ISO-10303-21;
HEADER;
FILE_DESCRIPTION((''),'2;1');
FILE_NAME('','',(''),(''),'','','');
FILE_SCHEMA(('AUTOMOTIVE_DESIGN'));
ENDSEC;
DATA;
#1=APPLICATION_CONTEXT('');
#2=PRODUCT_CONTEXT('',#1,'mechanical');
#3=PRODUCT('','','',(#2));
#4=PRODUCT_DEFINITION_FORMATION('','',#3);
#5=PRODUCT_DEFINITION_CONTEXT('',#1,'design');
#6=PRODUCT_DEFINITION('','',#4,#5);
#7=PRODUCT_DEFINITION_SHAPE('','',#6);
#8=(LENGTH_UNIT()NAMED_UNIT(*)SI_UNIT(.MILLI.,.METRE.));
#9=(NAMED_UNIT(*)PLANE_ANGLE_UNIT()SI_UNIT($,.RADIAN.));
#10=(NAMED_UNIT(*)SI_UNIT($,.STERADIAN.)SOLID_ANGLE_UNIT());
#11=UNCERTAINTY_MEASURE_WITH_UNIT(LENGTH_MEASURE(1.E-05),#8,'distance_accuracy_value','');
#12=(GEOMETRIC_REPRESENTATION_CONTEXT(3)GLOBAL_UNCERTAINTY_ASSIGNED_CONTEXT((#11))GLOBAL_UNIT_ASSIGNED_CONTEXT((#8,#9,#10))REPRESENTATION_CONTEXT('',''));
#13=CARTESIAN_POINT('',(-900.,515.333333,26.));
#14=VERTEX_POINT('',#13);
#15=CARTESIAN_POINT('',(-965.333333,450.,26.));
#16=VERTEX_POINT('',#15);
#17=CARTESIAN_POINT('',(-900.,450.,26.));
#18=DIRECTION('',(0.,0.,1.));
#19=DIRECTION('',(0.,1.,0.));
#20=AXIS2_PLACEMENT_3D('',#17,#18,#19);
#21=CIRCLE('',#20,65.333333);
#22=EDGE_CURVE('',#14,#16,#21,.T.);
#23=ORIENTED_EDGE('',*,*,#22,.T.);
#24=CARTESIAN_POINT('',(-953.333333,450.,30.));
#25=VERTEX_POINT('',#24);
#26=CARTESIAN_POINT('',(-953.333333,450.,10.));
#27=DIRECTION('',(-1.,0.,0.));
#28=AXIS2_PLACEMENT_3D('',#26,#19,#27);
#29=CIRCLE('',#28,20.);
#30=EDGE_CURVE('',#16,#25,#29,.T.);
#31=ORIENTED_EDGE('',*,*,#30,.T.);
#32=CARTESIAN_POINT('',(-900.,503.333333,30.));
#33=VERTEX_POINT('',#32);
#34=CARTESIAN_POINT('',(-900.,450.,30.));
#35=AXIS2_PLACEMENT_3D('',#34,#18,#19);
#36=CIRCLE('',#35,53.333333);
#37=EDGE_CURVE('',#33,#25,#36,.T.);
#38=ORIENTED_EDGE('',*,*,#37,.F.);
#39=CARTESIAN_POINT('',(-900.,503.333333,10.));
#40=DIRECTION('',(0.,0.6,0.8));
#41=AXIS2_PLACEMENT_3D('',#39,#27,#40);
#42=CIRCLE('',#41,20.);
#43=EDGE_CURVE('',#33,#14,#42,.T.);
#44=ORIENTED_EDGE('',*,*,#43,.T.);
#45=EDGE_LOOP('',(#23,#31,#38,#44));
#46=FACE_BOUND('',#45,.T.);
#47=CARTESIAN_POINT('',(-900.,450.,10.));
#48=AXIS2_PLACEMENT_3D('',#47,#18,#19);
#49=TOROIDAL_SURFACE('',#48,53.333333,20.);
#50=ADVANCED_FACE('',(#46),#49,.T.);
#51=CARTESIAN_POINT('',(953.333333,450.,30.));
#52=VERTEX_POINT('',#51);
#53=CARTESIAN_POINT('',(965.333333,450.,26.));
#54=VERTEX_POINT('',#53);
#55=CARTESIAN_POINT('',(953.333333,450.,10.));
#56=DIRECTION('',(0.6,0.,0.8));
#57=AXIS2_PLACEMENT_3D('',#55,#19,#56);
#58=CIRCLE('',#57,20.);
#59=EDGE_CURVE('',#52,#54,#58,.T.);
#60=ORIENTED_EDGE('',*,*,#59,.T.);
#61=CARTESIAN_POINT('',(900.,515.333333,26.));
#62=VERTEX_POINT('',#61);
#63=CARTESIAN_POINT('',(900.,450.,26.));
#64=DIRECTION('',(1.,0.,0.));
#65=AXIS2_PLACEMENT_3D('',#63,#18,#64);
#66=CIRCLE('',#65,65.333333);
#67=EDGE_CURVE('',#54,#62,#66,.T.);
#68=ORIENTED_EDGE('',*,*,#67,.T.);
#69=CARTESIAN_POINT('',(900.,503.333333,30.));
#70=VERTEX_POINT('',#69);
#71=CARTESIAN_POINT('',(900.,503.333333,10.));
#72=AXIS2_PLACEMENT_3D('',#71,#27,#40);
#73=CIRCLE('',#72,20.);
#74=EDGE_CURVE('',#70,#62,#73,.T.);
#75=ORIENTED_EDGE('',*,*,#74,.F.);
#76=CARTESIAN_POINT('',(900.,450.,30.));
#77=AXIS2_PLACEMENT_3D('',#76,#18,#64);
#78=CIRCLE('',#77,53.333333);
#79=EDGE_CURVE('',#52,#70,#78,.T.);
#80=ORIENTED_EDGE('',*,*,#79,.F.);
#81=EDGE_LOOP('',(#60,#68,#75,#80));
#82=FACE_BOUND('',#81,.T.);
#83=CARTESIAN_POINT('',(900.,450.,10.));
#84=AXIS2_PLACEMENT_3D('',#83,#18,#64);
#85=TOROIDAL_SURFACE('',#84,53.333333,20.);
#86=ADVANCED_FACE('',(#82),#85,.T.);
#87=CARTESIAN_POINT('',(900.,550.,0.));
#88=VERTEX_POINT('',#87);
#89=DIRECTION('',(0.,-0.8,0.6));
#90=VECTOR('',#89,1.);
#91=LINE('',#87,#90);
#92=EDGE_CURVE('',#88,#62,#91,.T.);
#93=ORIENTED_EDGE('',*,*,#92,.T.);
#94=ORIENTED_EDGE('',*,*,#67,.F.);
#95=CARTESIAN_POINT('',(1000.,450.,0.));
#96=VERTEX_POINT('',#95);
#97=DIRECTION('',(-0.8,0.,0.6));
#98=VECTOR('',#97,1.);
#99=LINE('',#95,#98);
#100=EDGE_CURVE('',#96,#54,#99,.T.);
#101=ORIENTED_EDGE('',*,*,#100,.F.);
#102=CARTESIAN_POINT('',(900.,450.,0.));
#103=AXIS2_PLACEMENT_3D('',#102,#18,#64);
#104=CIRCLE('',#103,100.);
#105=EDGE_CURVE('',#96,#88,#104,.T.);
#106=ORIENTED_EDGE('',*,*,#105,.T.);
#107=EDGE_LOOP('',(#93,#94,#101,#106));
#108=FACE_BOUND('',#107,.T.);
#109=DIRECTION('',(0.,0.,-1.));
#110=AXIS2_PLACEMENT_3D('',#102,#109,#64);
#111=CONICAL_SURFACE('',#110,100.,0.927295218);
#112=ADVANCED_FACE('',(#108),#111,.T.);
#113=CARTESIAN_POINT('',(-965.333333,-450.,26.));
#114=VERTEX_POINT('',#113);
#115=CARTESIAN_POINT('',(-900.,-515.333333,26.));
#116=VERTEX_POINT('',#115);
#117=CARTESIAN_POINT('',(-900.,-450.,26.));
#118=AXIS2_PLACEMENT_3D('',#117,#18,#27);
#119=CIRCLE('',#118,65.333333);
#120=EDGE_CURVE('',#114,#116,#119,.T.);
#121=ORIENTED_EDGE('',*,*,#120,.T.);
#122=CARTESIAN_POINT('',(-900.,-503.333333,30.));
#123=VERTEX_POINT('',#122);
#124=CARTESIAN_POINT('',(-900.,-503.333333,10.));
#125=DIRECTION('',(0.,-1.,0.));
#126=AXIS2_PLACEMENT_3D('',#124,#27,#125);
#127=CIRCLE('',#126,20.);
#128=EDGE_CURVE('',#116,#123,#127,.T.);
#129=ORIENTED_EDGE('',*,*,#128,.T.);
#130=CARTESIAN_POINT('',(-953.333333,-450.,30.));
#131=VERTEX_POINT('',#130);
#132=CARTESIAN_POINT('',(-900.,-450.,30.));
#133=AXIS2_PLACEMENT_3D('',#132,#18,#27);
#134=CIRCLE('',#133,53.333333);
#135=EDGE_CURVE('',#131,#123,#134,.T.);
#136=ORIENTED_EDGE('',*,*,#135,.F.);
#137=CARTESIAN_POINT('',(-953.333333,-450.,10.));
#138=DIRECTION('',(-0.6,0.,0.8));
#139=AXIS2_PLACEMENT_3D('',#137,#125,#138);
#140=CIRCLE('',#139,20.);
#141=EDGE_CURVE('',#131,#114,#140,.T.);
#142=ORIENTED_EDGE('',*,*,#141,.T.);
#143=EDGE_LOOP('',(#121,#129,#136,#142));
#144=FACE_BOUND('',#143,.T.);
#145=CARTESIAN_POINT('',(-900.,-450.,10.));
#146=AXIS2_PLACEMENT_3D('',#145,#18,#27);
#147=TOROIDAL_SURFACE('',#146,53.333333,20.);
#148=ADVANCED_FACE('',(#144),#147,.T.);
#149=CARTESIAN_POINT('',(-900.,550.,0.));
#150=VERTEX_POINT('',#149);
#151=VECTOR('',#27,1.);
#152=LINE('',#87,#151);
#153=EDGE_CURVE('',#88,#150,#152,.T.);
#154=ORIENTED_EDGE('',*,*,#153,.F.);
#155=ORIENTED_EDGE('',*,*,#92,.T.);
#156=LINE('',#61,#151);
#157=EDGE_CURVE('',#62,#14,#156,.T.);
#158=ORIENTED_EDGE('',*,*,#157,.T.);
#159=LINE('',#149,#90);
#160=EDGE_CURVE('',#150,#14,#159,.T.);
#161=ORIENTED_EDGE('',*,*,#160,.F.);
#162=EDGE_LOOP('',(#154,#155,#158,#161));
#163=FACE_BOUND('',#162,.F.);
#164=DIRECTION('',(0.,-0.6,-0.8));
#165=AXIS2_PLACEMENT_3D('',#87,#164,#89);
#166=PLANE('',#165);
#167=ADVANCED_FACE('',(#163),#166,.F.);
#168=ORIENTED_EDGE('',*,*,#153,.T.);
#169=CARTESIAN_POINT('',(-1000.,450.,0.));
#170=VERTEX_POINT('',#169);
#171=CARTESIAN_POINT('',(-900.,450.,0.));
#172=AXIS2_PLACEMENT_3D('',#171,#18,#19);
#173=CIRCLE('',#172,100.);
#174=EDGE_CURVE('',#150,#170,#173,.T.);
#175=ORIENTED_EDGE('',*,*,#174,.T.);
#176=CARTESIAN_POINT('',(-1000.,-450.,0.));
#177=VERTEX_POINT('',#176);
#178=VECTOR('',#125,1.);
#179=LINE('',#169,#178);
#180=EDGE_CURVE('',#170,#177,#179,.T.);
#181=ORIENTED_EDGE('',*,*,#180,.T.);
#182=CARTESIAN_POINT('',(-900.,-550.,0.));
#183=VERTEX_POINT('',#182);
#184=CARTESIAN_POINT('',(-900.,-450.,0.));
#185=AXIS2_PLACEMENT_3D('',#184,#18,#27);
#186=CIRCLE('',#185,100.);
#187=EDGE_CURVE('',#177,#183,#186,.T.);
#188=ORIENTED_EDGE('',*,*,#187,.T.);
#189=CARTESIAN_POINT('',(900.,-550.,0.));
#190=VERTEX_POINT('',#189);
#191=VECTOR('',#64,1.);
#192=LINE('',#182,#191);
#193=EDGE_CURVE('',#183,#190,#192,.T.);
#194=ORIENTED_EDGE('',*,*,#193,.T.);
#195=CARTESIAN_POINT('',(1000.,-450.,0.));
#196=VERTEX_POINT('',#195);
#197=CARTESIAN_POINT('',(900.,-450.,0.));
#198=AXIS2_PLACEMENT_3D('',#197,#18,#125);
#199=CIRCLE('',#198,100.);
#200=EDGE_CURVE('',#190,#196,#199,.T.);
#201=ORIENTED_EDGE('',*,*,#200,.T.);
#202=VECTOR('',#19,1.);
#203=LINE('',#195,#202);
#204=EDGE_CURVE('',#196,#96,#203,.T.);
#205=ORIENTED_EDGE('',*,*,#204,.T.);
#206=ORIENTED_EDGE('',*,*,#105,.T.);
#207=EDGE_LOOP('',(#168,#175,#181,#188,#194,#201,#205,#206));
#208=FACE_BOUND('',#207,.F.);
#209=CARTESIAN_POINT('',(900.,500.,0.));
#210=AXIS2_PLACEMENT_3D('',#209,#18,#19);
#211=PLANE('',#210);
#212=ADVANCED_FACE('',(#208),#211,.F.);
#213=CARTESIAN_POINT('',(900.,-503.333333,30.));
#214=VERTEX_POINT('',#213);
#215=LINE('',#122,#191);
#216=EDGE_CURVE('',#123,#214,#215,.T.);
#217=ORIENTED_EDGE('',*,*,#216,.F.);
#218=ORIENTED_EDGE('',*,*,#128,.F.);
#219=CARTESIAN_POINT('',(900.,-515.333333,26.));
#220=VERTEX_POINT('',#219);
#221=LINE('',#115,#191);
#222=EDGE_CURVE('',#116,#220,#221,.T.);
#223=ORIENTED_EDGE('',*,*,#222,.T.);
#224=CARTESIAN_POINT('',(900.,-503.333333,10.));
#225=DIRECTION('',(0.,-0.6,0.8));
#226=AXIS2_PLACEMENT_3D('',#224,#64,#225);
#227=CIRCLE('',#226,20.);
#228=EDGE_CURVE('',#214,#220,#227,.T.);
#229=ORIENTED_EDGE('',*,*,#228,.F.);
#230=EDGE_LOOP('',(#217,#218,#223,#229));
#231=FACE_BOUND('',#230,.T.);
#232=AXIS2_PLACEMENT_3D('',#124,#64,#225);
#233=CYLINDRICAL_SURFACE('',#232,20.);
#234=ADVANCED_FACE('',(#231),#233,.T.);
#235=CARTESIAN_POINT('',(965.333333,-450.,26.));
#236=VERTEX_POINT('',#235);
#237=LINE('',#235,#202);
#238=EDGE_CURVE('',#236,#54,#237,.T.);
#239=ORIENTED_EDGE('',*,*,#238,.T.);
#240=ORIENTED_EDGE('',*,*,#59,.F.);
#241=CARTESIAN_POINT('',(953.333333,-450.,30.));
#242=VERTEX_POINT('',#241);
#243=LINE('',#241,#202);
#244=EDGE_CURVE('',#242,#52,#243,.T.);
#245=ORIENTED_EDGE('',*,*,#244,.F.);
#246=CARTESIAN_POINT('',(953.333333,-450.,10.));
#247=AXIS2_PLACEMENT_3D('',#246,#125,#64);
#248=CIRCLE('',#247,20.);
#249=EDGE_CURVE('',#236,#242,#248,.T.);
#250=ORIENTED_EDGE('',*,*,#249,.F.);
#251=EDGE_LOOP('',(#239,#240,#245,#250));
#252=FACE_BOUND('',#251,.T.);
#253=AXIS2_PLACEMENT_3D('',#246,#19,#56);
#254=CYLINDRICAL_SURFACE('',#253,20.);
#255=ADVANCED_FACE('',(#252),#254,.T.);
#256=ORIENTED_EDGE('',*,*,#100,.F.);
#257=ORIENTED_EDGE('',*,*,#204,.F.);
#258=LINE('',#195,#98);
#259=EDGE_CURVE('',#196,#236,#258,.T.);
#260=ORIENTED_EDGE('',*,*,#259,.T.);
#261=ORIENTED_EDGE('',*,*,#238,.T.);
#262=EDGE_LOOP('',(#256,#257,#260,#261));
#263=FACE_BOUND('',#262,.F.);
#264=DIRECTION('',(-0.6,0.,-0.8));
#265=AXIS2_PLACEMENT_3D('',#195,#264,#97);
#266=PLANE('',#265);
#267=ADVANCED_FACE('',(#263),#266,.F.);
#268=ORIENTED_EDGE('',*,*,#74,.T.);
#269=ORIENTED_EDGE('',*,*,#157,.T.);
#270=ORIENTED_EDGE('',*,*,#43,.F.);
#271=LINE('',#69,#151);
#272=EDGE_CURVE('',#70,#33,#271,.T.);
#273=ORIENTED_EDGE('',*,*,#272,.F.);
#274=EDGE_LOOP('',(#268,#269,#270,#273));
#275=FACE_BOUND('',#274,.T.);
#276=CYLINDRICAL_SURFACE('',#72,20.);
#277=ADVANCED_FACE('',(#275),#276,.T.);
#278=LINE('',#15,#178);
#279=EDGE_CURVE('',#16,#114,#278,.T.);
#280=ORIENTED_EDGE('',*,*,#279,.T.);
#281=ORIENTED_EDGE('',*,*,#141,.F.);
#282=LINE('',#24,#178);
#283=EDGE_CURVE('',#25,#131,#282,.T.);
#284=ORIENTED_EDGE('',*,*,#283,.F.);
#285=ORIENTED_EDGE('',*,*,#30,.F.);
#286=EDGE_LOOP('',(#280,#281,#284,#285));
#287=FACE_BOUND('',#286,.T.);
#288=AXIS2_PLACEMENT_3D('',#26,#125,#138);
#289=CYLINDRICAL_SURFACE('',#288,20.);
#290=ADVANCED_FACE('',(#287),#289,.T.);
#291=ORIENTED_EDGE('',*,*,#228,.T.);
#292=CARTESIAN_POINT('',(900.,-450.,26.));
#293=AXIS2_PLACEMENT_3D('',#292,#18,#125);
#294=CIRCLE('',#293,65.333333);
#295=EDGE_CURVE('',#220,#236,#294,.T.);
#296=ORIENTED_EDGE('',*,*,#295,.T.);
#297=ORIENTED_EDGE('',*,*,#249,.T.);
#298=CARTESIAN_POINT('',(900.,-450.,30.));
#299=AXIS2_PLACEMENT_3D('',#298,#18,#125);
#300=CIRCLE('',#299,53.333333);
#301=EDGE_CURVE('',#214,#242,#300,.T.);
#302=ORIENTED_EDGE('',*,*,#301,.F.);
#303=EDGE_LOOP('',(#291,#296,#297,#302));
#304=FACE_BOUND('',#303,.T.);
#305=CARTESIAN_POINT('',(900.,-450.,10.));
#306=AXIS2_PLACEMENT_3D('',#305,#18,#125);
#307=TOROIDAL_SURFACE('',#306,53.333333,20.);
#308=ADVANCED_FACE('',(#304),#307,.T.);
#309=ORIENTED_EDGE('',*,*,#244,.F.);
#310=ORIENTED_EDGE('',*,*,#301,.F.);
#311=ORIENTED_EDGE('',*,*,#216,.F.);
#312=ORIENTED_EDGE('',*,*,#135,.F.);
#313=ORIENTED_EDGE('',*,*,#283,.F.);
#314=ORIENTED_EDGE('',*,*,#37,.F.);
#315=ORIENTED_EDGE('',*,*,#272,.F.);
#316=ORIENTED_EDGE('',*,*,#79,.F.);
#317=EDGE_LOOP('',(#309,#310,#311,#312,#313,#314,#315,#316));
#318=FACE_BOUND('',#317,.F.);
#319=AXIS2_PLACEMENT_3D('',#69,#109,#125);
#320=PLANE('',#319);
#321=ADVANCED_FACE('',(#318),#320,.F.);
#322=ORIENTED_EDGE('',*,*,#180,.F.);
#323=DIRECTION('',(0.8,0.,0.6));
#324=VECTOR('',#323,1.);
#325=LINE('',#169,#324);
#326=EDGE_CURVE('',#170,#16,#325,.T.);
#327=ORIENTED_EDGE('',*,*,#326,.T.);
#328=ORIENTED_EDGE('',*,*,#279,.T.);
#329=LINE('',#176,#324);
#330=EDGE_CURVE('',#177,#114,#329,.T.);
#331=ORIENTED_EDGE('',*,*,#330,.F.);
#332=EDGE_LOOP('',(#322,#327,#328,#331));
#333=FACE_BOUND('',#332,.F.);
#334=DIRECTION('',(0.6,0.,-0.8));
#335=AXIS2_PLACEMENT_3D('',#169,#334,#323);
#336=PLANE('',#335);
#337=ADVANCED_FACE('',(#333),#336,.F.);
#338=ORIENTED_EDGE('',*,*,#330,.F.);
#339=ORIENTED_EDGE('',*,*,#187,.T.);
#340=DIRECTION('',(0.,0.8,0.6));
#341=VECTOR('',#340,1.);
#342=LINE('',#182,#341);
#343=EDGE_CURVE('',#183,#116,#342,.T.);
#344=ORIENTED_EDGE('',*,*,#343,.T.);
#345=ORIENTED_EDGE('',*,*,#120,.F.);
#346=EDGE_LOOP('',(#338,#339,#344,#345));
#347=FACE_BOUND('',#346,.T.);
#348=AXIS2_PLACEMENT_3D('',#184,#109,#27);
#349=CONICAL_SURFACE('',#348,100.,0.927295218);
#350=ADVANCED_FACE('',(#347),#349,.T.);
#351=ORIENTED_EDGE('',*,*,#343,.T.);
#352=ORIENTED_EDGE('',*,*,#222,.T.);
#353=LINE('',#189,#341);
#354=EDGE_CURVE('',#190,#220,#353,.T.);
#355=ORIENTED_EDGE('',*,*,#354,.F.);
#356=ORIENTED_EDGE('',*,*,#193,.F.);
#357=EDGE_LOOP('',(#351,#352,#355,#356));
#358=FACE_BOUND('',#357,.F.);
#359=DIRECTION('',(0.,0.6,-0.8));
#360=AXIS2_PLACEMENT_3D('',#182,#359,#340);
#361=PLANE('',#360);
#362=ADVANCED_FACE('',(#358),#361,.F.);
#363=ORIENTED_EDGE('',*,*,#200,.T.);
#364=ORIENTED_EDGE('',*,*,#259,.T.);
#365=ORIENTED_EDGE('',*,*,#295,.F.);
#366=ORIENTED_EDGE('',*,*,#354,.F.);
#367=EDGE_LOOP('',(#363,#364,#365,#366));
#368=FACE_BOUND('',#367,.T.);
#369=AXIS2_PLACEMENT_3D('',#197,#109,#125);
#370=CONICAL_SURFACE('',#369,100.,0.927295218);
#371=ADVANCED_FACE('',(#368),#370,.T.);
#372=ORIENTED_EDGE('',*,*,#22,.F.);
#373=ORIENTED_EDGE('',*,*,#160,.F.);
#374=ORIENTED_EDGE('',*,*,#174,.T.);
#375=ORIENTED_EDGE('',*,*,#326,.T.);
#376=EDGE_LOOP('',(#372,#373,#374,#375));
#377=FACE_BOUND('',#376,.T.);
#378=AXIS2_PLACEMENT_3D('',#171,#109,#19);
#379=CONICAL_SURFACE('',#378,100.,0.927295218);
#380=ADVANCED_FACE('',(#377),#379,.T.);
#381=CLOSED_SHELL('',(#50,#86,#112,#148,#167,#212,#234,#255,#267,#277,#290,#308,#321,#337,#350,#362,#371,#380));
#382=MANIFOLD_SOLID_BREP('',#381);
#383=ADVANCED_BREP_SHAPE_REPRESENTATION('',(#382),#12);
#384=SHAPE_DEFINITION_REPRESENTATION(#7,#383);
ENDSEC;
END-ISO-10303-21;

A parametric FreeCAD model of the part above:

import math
import FreeCAD as App
import Part
import Sketcher
from FreeCAD import Vector
Q = App.Units.Quantity


def edges_at(feature, points):
    """Names of the edges that pass closest to the given points."""
    edges = feature.Shape.Edges
    near = lambda p: min(range(len(edges)), key=lambda i: edges[i].distToShape(Part.Vertex(*p))[0])
    return sorted({f"Edge{near(p) + 1}" for p in points})


def add_polygon(sketch, points):
    """Adds a closed chain of lines whose ends are joined by coincident constraints."""
    first, n = sketch.GeometryCount, len(points)
    for a, b in zip(points, points[1:] + points[:1]):
        sketch.addGeometry(Part.LineSegment(App.Vector(*a, 0), App.Vector(*b, 0)), False)
    for i in range(n):
        sketch.addConstraint(Sketcher.Constraint("Coincident", first + i, 2, first + (i + 1) % n, 1))

doc = App.newDocument("Part")
params = doc.addObject("Spreadsheet::Sheet", "Params")
for row, (alias, value) in enumerate([
    ("sketch1_width", "1900 mm"),
    ("sketch1_height", "1000 mm"),
    ("pad1_length", "30 mm"),
    ("fillet_radius", "50 mm"),
    ("sketch2_radius", "20 mm"),
    ("sketch2_width", "50 mm"),
    ("sketch2_height", "30 mm"),
    ("sketch3_radius", "50 mm"),
    ("sketch3_width", "1800 mm"),
    ("sketch3_height", "900 mm"),
], start=1):
    params.set(f"A{row}", alias)
    params.set(f"B{row}", "=" + value)
    params.setAlias(f"B{row}", alias)

body = doc.addObject("PartDesign::Body", "Body")

sketch1 = doc.addObject("Sketcher::SketchObject", "Sketch")
body.addObject(sketch1)
sketch1.AttachmentSupport = (doc.XY_Plane, [""])
sketch1.MapMode = "FlatFace"
add_polygon(sketch1, [(-950, 500), (-950, -500), (950, -500), (950, 500)])
sketch1.addConstraint([
    Sketcher.Constraint("Vertical", 0),
    Sketcher.Constraint("Horizontal", 1),
    Sketcher.Constraint("Vertical", 2),
    Sketcher.Constraint("Horizontal", 3),
    Sketcher.Constraint("Symmetric", 0, 2, 2, 2, -1, 1),
    Sketcher.Constraint("DistanceX", 1, 1, 1, 2, Q("1900 mm")),
    Sketcher.Constraint("DistanceY", 0, 2, 0, 1, Q("1000 mm")),
])
sketch1.setExpression("Constraints[9]", "Params.sketch1_width")
sketch1.setExpression("Constraints[10]", "Params.sketch1_height")
pad1 = doc.addObject("PartDesign::Pad", "Pad")
body.addObject(pad1)
pad1.Profile = sketch1
pad1.setExpression("Length", "Params.pad1_length")
doc.recompute()

fillet = doc.addObject("PartDesign::Fillet", "Fillet")
body.addObject(fillet)
fillet.Base = (pad1, edges_at(pad1, [
    (-950, -500, 15),
    (-950, 500, 15),
    (950, -500, 15),
    (950, 500, 15),
]))
fillet.setExpression("Radius", "Params.fillet_radius")

sketch2 = doc.addObject("Sketcher::SketchObject", "Sketch001")
body.addObject(sketch2)
sketch2.AttachmentSupport = (doc.XZ_Plane, [""])
sketch2.MapMode = "FlatFace"
sketch2.AttachmentOffset = App.Placement(Vector(0, 0, 450), App.Rotation())
sketch2.addGeometry([
    Part.LineSegment(Vector(953.3, 30, 0), Vector(950, 30, 0)),
    Part.LineSegment(Vector(950, 30, 0), Vector(950, 0, 0)),
    Part.LineSegment(Vector(950, 0, 0), Vector(1000, 0, 0)),
    Part.LineSegment(Vector(1000, 0, 0), Vector(965.3, 26, 0)),
    Part.ArcOfCircle(Part.Circle(Vector(953.3, 10, 0), Vector(0, 0, 1), 20), math.radians(53), math.radians(90)),
], False)
sketch2.addConstraint([
    Sketcher.Constraint("Coincident", 0, 2, 1, 1),
    Sketcher.Constraint("Coincident", 1, 2, 2, 1),
    Sketcher.Constraint("Coincident", 2, 2, 3, 1),
    Sketcher.Constraint("Tangent", 3, 2, 4, 1),
    Sketcher.Constraint("Tangent", 4, 2, 0, 1),
    Sketcher.Constraint("Horizontal", 0),
    Sketcher.Constraint("Vertical", 1),
    Sketcher.Constraint("Horizontal", 2),
    Sketcher.Constraint("PointOnObject", 1, 2, -1),
    Sketcher.Constraint("Radius", 4, Q("20 mm")),
    Sketcher.Constraint("DistanceX", 2, 1, 2, 2, Q("50 mm")),
    Sketcher.Constraint("DistanceY", 1, 2, 1, 1, Q("30 mm")),
    Sketcher.Constraint("DistanceX", -1, 1, 0, 2, Q("950 mm")),
    Sketcher.Constraint("DistanceY", -1, 1, 3, 2, Q("26 mm")),
])
sketch2.setExpression("Constraints[9]", "Params.sketch2_radius")
sketch2.setExpression("Constraints[10]", "Params.sketch2_width")
sketch2.setExpression("Constraints[11]", "Params.sketch2_height")

sketch3 = doc.addObject("Sketcher::SketchObject", "Sketch002")
body.addObject(sketch3)
sketch3.AttachmentSupport = (doc.XY_Plane, [""])
sketch3.MapMode = "FlatFace"
sketch3.AttachmentOffset = App.Placement(Vector(0, 0, 30), App.Rotation())
sketch3.addGeometry([
    Part.LineSegment(Vector(900, 500, 0), Vector(-900, 500, 0)),
    Part.ArcOfCircle(Part.Circle(Vector(-900, 450, 0), Vector(0, 0, 1), 50), math.radians(90), math.radians(180)),
    Part.LineSegment(Vector(-950, 450, 0), Vector(-950, -450, 0)),
    Part.ArcOfCircle(Part.Circle(Vector(-900, -450, 0), Vector(0, 0, 1), 50), math.radians(180), math.radians(270)),
    Part.LineSegment(Vector(-900, -500, 0), Vector(900, -500, 0)),
    Part.ArcOfCircle(Part.Circle(Vector(900, -450, 0), Vector(0, 0, 1), 50), math.radians(-90), math.radians(0)),
    Part.LineSegment(Vector(950, -450, 0), Vector(950, 450, 0)),
    Part.ArcOfCircle(Part.Circle(Vector(900, 450, 0), Vector(0, 0, 1), 50), math.radians(0), math.radians(90)),
], False)
sketch3.addConstraint([
    Sketcher.Constraint("Tangent", 0, 2, 1, 1),
    Sketcher.Constraint("Tangent", 1, 2, 2, 1),
    Sketcher.Constraint("Tangent", 2, 2, 3, 1),
    Sketcher.Constraint("Tangent", 3, 2, 4, 1),
    Sketcher.Constraint("Tangent", 4, 2, 5, 1),
    Sketcher.Constraint("Tangent", 5, 2, 6, 1),
    Sketcher.Constraint("Tangent", 6, 2, 7, 1),
    Sketcher.Constraint("Tangent", 7, 2, 0, 1),
    Sketcher.Constraint("Horizontal", 0),
    Sketcher.Constraint("Vertical", 2),
    Sketcher.Constraint("Horizontal", 4),
    Sketcher.Constraint("Vertical", 6),
    Sketcher.Constraint("Equal", 1, 3),
    Sketcher.Constraint("Equal", 3, 5),
    Sketcher.Constraint("Equal", 5, 7),
    Sketcher.Constraint("Symmetric", 1, 3, 5, 3, -1, 1),
    Sketcher.Constraint("Radius", 1, Q("50 mm")),
    Sketcher.Constraint("DistanceX", 0, 2, 0, 1, Q("1800 mm")),
    Sketcher.Constraint("DistanceY", 2, 2, 2, 1, Q("900 mm")),
])
sketch3.setExpression("Constraints[16]", "Params.sketch3_radius")
sketch3.setExpression("Constraints[17]", "Params.sketch3_width")
sketch3.setExpression("Constraints[18]", "Params.sketch3_height")
doc.recompute()

additivepipe = doc.addObject("PartDesign::AdditivePipe", "AdditivePipe")
body.addObject(additivepipe)
additivepipe.Profile = sketch2
additivepipe.Spine = (sketch3, ["Edge1", "Edge2", "Edge3", "Edge4", "Edge5", "Edge6", "Edge7", "Edge8"])

doc.recompute()
